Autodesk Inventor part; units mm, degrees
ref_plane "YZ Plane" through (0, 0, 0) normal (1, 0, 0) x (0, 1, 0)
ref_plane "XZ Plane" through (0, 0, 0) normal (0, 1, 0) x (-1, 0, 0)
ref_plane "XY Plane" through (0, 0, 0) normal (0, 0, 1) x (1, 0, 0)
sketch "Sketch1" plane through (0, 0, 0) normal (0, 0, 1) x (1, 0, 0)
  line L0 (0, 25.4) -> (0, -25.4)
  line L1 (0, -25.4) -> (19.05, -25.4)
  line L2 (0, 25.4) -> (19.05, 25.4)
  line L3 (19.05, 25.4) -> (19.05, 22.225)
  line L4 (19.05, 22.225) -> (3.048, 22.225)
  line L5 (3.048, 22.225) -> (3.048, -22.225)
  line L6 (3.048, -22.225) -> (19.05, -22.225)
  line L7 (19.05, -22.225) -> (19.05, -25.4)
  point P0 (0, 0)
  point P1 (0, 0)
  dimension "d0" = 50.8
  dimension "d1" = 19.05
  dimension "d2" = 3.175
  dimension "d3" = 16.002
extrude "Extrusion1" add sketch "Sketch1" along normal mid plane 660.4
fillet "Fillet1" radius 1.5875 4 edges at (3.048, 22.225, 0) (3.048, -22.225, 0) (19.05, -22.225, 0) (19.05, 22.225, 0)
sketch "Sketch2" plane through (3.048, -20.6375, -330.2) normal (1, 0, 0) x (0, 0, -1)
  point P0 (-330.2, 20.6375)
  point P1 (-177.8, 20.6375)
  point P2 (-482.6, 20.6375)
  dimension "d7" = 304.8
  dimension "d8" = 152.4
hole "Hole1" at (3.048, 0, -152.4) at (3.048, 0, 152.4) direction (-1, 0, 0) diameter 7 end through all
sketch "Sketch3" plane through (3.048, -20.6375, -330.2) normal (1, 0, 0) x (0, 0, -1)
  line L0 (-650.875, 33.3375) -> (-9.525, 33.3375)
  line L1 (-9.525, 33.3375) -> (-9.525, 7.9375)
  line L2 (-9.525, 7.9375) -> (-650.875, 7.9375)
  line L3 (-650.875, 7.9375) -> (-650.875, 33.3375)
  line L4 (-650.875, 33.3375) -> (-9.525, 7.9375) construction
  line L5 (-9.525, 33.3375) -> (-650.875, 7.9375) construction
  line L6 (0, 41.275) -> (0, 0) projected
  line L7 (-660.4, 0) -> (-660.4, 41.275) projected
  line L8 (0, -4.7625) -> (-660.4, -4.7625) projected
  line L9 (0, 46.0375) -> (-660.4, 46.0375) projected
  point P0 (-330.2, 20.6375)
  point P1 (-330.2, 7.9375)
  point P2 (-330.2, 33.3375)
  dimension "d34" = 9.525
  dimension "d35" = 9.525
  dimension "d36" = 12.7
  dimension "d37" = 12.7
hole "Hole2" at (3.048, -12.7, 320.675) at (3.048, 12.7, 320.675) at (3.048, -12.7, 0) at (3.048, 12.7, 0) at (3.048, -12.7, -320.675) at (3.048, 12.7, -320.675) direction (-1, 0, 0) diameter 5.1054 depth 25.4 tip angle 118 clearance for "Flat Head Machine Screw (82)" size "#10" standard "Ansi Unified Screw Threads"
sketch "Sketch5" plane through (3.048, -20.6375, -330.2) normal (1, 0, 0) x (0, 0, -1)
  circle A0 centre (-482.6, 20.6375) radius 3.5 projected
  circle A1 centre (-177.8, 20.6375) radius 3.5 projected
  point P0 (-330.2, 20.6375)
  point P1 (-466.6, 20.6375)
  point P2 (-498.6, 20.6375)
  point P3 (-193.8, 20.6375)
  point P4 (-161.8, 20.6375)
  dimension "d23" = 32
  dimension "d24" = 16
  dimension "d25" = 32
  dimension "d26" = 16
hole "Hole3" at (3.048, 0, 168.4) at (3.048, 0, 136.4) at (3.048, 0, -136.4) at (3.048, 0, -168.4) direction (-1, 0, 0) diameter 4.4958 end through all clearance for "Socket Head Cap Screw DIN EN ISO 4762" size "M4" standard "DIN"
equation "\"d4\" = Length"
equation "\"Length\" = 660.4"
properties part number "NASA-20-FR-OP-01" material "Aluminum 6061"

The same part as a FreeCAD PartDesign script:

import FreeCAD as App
import Part
import Sketcher

V = App.Vector
Q = App.Units.Quantity


def edges_at(feature, points):
    """Names of the edges that pass closest to the given points."""
    edges = feature.Shape.Edges
    near = lambda p: min(range(len(edges)), key=lambda i: edges[i].distToShape(Part.Vertex(*p))[0])
    return sorted({f"Edge{near(p) + 1}" for p in points})

doc = App.newDocument("Part")
params = doc.addObject("Spreadsheet::Sheet", "Params")
for row, (alias, value) in enumerate([
    ("sketch1_height", "2 in"),
    ("sketch1_width", "0.75 in"),
    ("sketch1_width2", "0.63 in"),
    ("sketch1_height2", "0.125 in"),
    ("pad1_length", "26 in"),
    ("fillet_radius", "0.0625 in"),
    ("hole_diameter", "0.2755906 in"),
    ("sketch3_diameter", "0.201 in"),
    ("hole2_diameter", "0.201 in"),
    ("hole2_depth", "1 in"),
    ("sketch4_diameter", "0.177 in"),
    ("hole3_diameter", "0.177 in"),
], start=1):
    params.set(f"A{row}", alias)
    params.set(f"B{row}", "=" + value)
    params.setAlias(f"B{row}", alias)

body = doc.addObject("PartDesign::Body", "Body")

# Sketch on XY plane
sketch1 = doc.addObject("Sketcher::SketchObject", "Sketch")
body.addObject(sketch1)
sketch1.AttachmentSupport = (doc.XY_Plane, [""])
sketch1.MapMode = "FlatFace"
sketch1.addGeometry([
    Part.LineSegment(V(19.1, 25.4, 0), V(0, 25.4, 0)),  # 0
    Part.LineSegment(V(0, 25.4, 0), V(0, -25.4, 0)),  # 1
    Part.LineSegment(V(0, -25.4, 0), V(19.1, -25.4, 0)),  # 2
    Part.LineSegment(V(19.1, -25.4, 0), V(19.1, -22.2, 0)),  # 3
    Part.LineSegment(V(19.1, -22.2, 0), V(3, -22.2, 0)),  # 4
    Part.LineSegment(V(3, -22.2, 0), V(3, 22.2, 0)),  # 5
    Part.LineSegment(V(3, 22.2, 0), V(19.1, 22.2, 0)),  # 6
    Part.LineSegment(V(19.1, 22.2, 0), V(19.1, 25.4, 0)),  # 7
], False)
sketch1.addConstraint([
    Sketcher.Constraint("Coincident", 0, 2, 1, 1),
    Sketcher.Constraint("Coincident", 1, 2, 2, 1),
    Sketcher.Constraint("Coincident", 2, 2, 3, 1),
    Sketcher.Constraint("Coincident", 3, 2, 4, 1),
    Sketcher.Constraint("Coincident", 4, 2, 5, 1),
    Sketcher.Constraint("Coincident", 5, 2, 6, 1),
    Sketcher.Constraint("Coincident", 6, 2, 7, 1),
    Sketcher.Constraint("Coincident", 7, 2, 0, 1),
    Sketcher.Constraint("Horizontal", 0),
    Sketcher.Constraint("Vertical", 1),
    Sketcher.Constraint("Horizontal", 2),
    Sketcher.Constraint("Vertical", 3),
    Sketcher.Constraint("Horizontal", 4),
    Sketcher.Constraint("Vertical", 5),
    Sketcher.Constraint("Horizontal", 6),
    Sketcher.Constraint("Vertical", 7),
    Sketcher.Constraint("Symmetric", 0, 2, 1, 2, -1, 1),
    Sketcher.Constraint("Symmetric", 3, 2, 6, 2, -1),
    Sketcher.Constraint("DistanceY", 1, 2, 1, 1, Q("2 in")),
    Sketcher.Constraint("DistanceX", 0, 2, 0, 1, Q("0.75 in")),
    Sketcher.Constraint("DistanceX", 4, 2, 4, 1, Q("0.63 in")),
    Sketcher.Constraint("DistanceY", 3, 1, 3, 2, Q("0.125 in")),
])
sketch1.setExpression("Constraints[18]", "Params.sketch1_height")
sketch1.setExpression("Constraints[19]", "Params.sketch1_width")
sketch1.setExpression("Constraints[20]", "Params.sketch1_width2")
sketch1.setExpression("Constraints[21]", "Params.sketch1_height2")
pad1 = doc.addObject("PartDesign::Pad", "Pad")
body.addObject(pad1)
pad1.Profile = sketch1
pad1.setExpression("Length", "Params.pad1_length")
pad1.Midplane = True
doc.recompute()

fillet = doc.addObject("PartDesign::Fillet", "Fillet")
body.addObject(fillet)
fillet.Base = (pad1, edges_at(pad1, [
    (3.048, 22.225, 0),
    (3.048, -22.225, 0),
    (19.05, -22.225, 0),
    (19.05, 22.225, 0),
]))
fillet.setExpression("Radius", "Params.fillet_radius")

# Sketch on YZ plane
sketch2 = doc.addObject("Sketcher::SketchObject", "Sketch001")
body.addObject(sketch2)
sketch2.AttachmentSupport = (doc.YZ_Plane, [""])
sketch2.MapMode = "FlatFace"
sketch2.AttachmentOffset = App.Placement(V(0, 0, 0.12 * 25.4), App.Rotation())
sketch2.addGeometry([
    Part.Circle(V(0, -152.4, 0), V(0, 0, 1), 3.5),
    Part.Circle(V(0, 152.4, 0), V(0, 0, 1), 3.5),
], False)
sketch2.addConstraint([
    Sketcher.Constraint("Equal", 0, 1),
    Sketcher.Constraint("Symmetric", 0, 3, 1, 3, -1, 1),
    Sketcher.Constraint("PointOnObject", 0, 3, -2),
    Sketcher.Constraint("DistanceY", 0, 3, -1, 1, Q("6 in")),
    Sketcher.Constraint("Diameter", 0, Q("0.2756 in")),
])
doc.recompute()
hole = doc.addObject("PartDesign::Hole", "Hole")
body.addObject(hole)
hole.Profile = sketch2
hole.ThreadType = "None"
hole.setExpression("Diameter", "Params.hole_diameter")
hole.DepthType = "ThroughAll"

# Sketch on YZ plane
sketch3 = doc.addObject("Sketcher::SketchObject", "Sketch002")
body.addObject(sketch3)
sketch3.AttachmentSupport = (doc.YZ_Plane, [""])
sketch3.MapMode = "FlatFace"
sketch3.AttachmentOffset = App.Placement(V(0, 0, 0.12 * 25.4), App.Rotation())
sketch3.addGeometry([
    Part.Circle(V(-12.7, 320.7, 0), V(0, 0, 1), 2.6),  # 0
    Part.Circle(V(12.7, 320.7, 0), V(0, 0, 1), 2.6),  # 1
    Part.Circle(V(-12.7, 0, 0), V(0, 0, 1), 2.6),  # 2
    Part.Circle(V(12.7, 0, 0), V(0, 0, 1), 2.6),  # 3
    Part.Circle(V(-12.7, -320.7, 0), V(0, 0, 1), 2.6),  # 4
    Part.Circle(V(12.7, -320.7, 0), V(0, 0, 1), 2.6),  # 5
], False)
sketch3.addConstraint([
    Sketcher.Constraint("Equal", 0, 1),
    Sketcher.Constraint("Equal", 1, 2),
    Sketcher.Constraint("Equal", 2, 3),
    Sketcher.Constraint("Equal", 3, 4),
    Sketcher.Constraint("Equal", 4, 5),
    Sketcher.Constraint("Symmetric", 2, 3, 3, 3, -1, 1),
    Sketcher.Constraint("Symmetric", 1, 3, 4, 3, -1, 1),
    Sketcher.Constraint("Symmetric", 0, 3, 5, 3, -1, 1),
    Sketcher.Constraint("Symmetric", 0, 3, 1, 3, -2),
    Sketcher.Constraint("PointOnObject", 2, 3, -1),
    Sketcher.Constraint("Vertical", 0, 3, 2, 3),
    Sketcher.Constraint("Diameter", 0, Q("0.201 in")),
    Sketcher.Constraint("DistanceX", 0, 3, 1, 3, Q("1 in")),
    Sketcher.Constraint("DistanceY", 4, 3, 0, 3, Q("25.25 in")),
])
sketch3.setExpression("Constraints[11]", "Params.sketch3_diameter")
doc.recompute()
hole2 = doc.addObject("PartDesign::Hole", "Hole001")
body.addObject(hole2)
hole2.Profile = sketch3
hole2.ThreadType = "None"
hole2.setExpression("Diameter", "Params.hole2_diameter")
hole2.DepthType = "Dimension"
hole2.setExpression("Depth", "Params.hole2_depth")
hole2.DrillPoint = "Angled"
hole2.DrillPointAngle = 118

# Sketch on YZ plane
sketch4 = doc.addObject("Sketcher::SketchObject", "Sketch003")
body.addObject(sketch4)
sketch4.AttachmentSupport = (doc.YZ_Plane, [""])
sketch4.MapMode = "FlatFace"
sketch4.AttachmentOffset = App.Placement(V(0, 0, 0.12 * 25.4), App.Rotation())
sketch4.addGeometry([
    Part.Circle(V(0, 168.4, 0), V(0, 0, 1), 2.2),
    Part.Circle(V(0, 136.4, 0), V(0, 0, 1), 2.2),
    Part.Circle(V(0, -136.4, 0), V(0, 0, 1), 2.2),
    Part.Circle(V(0, -168.4, 0), V(0, 0, 1), 2.2),
], False)
sketch4.addConstraint([
    Sketcher.Constraint("Equal", 0, 1),
    Sketcher.Constraint("Equal", 1, 2),
    Sketcher.Constraint("Equal", 2, 3),
    Sketcher.Constraint("Symmetric", 1, 3, 2, 3, -1, 1),
    Sketcher.Constraint("Symmetric", 0, 3, 3, 3, -1, 1),
    Sketcher.Constraint("PointOnObject", 0, 3, -2),
    Sketcher.Constraint("PointOnObject", 1, 3, -2),
    Sketcher.Constraint("Diameter", 0, Q("0.177 in")),
    Sketcher.Constraint("DistanceY", 2, 3, 0, 3, Q("12 in")),
    Sketcher.Constraint("DistanceY", -1, 1, 0, 3, Q("168.4 mm")),
])
sketch4.setExpression("Constraints[7]", "Params.sketch4_diameter")
doc.recompute()
hole3 = doc.addObject("PartDesign::Hole", "Hole002")
body.addObject(hole3)
hole3.Profile = sketch4
hole3.ThreadType = "None"
hole3.setExpression("Diameter", "Params.hole3_diameter")
hole3.DepthType = "ThroughAll"

doc.recompute()
